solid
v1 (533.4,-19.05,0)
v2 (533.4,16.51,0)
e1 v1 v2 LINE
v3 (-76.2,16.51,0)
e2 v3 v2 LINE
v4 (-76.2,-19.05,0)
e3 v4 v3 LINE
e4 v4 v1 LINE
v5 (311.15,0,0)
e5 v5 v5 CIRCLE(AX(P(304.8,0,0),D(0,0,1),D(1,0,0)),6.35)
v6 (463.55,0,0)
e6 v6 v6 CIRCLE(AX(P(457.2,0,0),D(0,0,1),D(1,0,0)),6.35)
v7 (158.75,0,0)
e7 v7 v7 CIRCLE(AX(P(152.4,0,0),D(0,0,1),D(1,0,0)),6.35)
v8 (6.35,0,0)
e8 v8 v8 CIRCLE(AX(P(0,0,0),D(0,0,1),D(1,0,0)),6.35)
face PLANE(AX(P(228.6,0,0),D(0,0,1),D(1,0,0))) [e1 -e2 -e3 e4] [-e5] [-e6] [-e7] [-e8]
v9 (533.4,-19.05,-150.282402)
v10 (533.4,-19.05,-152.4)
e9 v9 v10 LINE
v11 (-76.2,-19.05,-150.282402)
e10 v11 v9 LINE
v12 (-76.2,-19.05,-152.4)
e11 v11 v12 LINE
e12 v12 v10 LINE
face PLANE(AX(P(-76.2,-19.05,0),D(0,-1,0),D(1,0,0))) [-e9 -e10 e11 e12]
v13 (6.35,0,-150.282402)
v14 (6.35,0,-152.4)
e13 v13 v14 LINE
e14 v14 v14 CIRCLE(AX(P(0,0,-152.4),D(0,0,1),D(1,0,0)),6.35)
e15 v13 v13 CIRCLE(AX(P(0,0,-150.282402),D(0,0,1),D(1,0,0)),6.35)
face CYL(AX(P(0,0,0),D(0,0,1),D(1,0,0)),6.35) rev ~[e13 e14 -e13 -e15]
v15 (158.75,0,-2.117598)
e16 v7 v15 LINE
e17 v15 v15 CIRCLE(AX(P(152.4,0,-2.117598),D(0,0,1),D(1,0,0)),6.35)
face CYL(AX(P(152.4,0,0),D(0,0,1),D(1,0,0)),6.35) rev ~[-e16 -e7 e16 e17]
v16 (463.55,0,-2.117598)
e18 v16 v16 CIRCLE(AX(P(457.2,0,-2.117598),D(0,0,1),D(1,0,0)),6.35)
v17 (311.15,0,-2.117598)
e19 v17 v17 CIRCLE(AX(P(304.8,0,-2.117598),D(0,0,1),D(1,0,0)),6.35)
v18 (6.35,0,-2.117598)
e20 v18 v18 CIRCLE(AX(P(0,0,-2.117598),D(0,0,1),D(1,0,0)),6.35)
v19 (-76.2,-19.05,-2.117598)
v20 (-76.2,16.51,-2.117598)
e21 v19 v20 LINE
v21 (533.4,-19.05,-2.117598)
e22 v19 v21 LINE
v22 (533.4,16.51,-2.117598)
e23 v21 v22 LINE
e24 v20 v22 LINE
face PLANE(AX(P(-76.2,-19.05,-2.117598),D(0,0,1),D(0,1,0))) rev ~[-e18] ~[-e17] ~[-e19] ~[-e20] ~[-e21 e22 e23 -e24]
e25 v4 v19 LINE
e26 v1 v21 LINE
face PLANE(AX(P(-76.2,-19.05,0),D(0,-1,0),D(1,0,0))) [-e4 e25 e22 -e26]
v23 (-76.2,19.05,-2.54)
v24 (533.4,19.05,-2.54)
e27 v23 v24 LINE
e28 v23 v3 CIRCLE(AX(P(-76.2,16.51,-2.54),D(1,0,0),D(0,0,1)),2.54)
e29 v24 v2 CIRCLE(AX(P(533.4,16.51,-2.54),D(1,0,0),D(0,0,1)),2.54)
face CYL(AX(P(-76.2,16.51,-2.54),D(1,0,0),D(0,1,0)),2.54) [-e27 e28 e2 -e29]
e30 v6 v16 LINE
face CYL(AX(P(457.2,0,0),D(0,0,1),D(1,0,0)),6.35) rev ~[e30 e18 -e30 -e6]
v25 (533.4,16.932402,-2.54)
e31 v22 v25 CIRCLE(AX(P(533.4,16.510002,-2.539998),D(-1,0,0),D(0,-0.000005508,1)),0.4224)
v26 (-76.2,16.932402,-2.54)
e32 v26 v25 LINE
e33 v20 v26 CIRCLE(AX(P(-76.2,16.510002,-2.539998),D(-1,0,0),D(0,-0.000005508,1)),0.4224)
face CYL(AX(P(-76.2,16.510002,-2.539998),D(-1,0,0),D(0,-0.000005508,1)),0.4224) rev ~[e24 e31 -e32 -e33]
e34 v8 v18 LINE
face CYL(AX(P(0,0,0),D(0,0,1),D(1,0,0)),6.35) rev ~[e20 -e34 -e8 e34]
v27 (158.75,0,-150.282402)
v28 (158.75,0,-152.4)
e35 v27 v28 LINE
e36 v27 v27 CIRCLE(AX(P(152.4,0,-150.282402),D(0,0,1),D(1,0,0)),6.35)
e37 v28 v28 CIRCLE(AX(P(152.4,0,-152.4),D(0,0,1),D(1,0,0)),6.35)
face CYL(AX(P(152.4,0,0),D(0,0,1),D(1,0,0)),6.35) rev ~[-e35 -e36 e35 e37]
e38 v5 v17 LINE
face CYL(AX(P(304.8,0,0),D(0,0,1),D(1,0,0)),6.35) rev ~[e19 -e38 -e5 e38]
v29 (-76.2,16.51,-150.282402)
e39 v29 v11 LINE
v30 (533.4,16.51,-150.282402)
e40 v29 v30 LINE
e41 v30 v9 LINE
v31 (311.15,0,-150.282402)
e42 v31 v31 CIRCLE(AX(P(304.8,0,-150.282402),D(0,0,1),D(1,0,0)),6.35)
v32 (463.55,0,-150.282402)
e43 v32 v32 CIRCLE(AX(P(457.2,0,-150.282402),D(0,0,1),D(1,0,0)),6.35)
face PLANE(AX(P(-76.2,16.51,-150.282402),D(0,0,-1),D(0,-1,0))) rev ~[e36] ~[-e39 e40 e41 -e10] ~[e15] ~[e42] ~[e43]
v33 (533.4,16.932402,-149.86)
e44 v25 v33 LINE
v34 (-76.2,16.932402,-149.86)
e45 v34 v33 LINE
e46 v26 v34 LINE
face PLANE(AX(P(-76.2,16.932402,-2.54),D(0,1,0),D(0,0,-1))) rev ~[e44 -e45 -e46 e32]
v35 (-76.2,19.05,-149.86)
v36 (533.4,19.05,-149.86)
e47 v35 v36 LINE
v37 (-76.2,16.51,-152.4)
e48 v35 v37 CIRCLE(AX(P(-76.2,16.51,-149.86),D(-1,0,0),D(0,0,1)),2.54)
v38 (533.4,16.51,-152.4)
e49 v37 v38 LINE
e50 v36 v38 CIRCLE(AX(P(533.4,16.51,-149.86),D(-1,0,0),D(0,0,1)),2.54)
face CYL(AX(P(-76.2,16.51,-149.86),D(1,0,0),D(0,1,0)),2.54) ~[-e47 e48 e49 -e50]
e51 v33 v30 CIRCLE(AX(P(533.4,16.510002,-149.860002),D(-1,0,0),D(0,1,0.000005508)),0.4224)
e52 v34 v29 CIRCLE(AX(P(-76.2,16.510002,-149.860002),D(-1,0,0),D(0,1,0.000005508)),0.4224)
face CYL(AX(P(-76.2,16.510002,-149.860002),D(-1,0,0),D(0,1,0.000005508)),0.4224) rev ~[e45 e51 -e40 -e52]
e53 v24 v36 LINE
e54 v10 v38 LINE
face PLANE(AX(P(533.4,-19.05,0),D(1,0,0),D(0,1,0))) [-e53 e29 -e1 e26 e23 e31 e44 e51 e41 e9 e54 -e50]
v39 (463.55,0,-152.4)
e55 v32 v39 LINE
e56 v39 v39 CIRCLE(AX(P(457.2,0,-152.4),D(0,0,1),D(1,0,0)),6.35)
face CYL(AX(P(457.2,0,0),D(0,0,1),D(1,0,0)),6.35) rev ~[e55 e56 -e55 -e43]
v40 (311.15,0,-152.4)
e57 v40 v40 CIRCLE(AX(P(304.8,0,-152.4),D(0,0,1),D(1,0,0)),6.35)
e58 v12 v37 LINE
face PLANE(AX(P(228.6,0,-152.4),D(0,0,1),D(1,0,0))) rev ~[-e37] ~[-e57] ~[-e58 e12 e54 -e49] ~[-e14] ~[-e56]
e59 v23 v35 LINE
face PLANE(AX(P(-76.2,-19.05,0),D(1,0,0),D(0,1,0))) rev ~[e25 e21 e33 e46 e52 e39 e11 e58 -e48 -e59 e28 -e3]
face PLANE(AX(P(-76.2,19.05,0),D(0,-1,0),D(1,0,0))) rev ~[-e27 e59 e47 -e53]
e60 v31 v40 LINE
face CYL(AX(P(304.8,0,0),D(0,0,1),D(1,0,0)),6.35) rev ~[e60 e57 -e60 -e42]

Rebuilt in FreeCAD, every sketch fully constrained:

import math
import FreeCAD as App
import Part
import Sketcher
Q = App.Units.Quantity


def edges_at(feature, points):
    """Names of the edges that pass closest to the given points."""
    edges = feature.Shape.Edges
    near = lambda p: min(range(len(edges)), key=lambda i: edges[i].distToShape(Part.Vertex(*p))[0])
    return sorted({f"Edge{near(p) + 1}" for p in points})


def add_polygon(sketch, points):
    """Adds a closed chain of lines whose ends are joined by coincident constraints."""
    first, n = sketch.GeometryCount, len(points)
    for a, b in zip(points, points[1:] + points[:1]):
        sketch.addGeometry(Part.LineSegment(App.Vector(*a, 0), App.Vector(*b, 0)), False)
    for i in range(n):
        sketch.addConstraint(Sketcher.Constraint("Coincident", first + i, 2, first + (i + 1) % n, 1))

doc = App.newDocument("Part")
body = doc.addObject("PartDesign::Body", "Body")

# Sketch on XY plane
sketch1 = doc.addObject("Sketcher::SketchObject", "Sketch")
body.addObject(sketch1)
sketch1.AttachmentSupport = (doc.XY_Plane, [""])
sketch1.MapMode = "FlatFace"
add_polygon(sketch1, [(-76.2, 19.05), (-76.2, -19.05), (533.4, -19.05), (533.4, 19.05)])  # lines 0-3
sketch1.addGeometry(Part.Circle(App.Vector(0, 0, 0), App.Vector(0, 0, 1), 6.35), False)  # 4
sketch1.addGeometry(Part.Circle(App.Vector(152.4, 0, 0), App.Vector(0, 0, 1), 6.35), False)  # 5
sketch1.addGeometry(Part.Circle(App.Vector(304.8, 0, 0), App.Vector(0, 0, 1), 6.35), False)  # 6
sketch1.addGeometry(Part.Circle(App.Vector(457.2, 0, 0), App.Vector(0, 0, 1), 6.35), False)  # 7
sketch1.addConstraint(Sketcher.Constraint("Vertical", 0))
sketch1.addConstraint(Sketcher.Constraint("Horizontal", 1))
sketch1.addConstraint(Sketcher.Constraint("Vertical", 2))
sketch1.addConstraint(Sketcher.Constraint("Horizontal", 3))
sketch1.addConstraint(Sketcher.Constraint("Coincident", 4, 3, -1, 1))
sketch1.addConstraint(Sketcher.Constraint("Equal", 4, 5))
sketch1.addConstraint(Sketcher.Constraint("Equal", 5, 6))
sketch1.addConstraint(Sketcher.Constraint("Equal", 6, 7))
sketch1.addConstraint(Sketcher.Constraint("PointOnObject", 5, 3, -1))
sketch1.addConstraint(Sketcher.Constraint("PointOnObject", 6, 3, -1))
sketch1.addConstraint(Sketcher.Constraint("PointOnObject", 7, 3, -1))
sketch1.addConstraint(Sketcher.Constraint("Diameter", 4, Q("0.5 in")))
sketch1.addConstraint(Sketcher.Constraint("DistanceX", 1, 1, 1, 2, Q("24 in")))
sketch1.addConstraint(Sketcher.Constraint("DistanceY", 0, 2, 0, 1, Q("1.5 in")))
sketch1.addConstraint(Sketcher.Constraint("DistanceX", -1, 1, 5, 3, Q("6 in")))
sketch1.addConstraint(Sketcher.Constraint("DistanceX", -1, 1, 6, 3, Q("12 in")))
sketch1.addConstraint(Sketcher.Constraint("DistanceX", -1, 1, 7, 3, Q("18 in")))
sketch1.addConstraint(Sketcher.Constraint("DistanceX", 0, 2, -1, 1, Q("3 in")))
sketch1.addConstraint(Sketcher.Constraint("DistanceY", 0, 2, -1, 1, Q("0.75 in")))
pad1 = doc.addObject("PartDesign::Pad", "Pad")
body.addObject(pad1)
pad1.Profile = sketch1
pad1.Length = Q("6 in")
pad1.Reversed = True
doc.recompute()

fillet = doc.addObject("PartDesign::Fillet", "Fillet")
body.addObject(fillet)
fillet.Base = (pad1, edges_at(pad1, [(228.6, 19.05, 0), (228.6, 19.05, -152.4)]))
fillet.Radius = Q("0.1 in")

# Sketch on YZ plane
sketch2 = doc.addObject("Sketcher::SketchObject", "Sketch001")
body.addObject(sketch2)
sketch2.AttachmentSupport = (doc.YZ_Plane, [""])
sketch2.MapMode = "FlatFace"
sketch2.AttachmentOffset = App.Placement(App.Vector(0, 0, -3 * 25.4), App.Rotation())
sketch2.addGeometry(Part.LineSegment(App.Vector(16.51, -150.282402, 0), App.Vector(-19.05, -150.282402, 0)), False)
sketch2.addGeometry(Part.LineSegment(App.Vector(-19.05, -150.282402, 0), App.Vector(-19.05, -2.117598, 0)), False)
sketch2.addGeometry(Part.LineSegment(App.Vector(-19.05, -2.117598, 0), App.Vector(16.51, -2.117598, 0)), False)
sketch2.addGeometry(Part.ArcOfCircle(Part.Circle(App.Vector(16.510002, -2.539998, 0), App.Vector(0, 0, 1), 0.4224), math.radians(-0.000316), math.radians(90.000316)), False)
sketch2.addGeometry(Part.LineSegment(App.Vector(16.932402, -2.54, 0), App.Vector(16.932402, -149.86, 0)), False)
sketch2.addGeometry(Part.ArcOfCircle(Part.Circle(App.Vector(16.510002, -149.860002, 0), App.Vector(0, 0, 1), 0.4224), math.radians(-90.000316), math.radians(0.000316)), False)
sketch2.addConstraint(Sketcher.Constraint("Coincident", 0, 2, 1, 1))
sketch2.addConstraint(Sketcher.Constraint("Coincident", 1, 2, 2, 1))
sketch2.addConstraint(Sketcher.Constraint("Coincident", 2, 2, 3, 2))
sketch2.addConstraint(Sketcher.Constraint("Coincident", 3, 1, 4, 1))
sketch2.addConstraint(Sketcher.Constraint("Coincident", 4, 2, 5, 2))
sketch2.addConstraint(Sketcher.Constraint("Coincident", 5, 1, 0, 1))
sketch2.addConstraint(Sketcher.Constraint("Horizontal", 0))
sketch2.addConstraint(Sketcher.Constraint("Vertical", 1))
sketch2.addConstraint(Sketcher.Constraint("Horizontal", 2))
sketch2.addConstraint(Sketcher.Constraint("Vertical", 4))
sketch2.addConstraint(Sketcher.Constraint("Equal", 3, 5))
sketch2.addConstraint(Sketcher.Constraint("Vertical", 2, 2, 5, 1))
sketch2.addConstraint(Sketcher.Constraint("DistanceX", 0, 2, 0, 1, Q("1.4 in")))
sketch2.addConstraint(Sketcher.Constraint("DistanceY", 4, 2, 4, 1, Q("5.8 in")))
sketch2.addConstraint(Sketcher.Constraint("DistanceY", 3, 3, -1, 1, Q("0.0999999 in")))
sketch2.addConstraint(Sketcher.Constraint("DistanceY", 5, 3, -1, 1, Q("5.9000001 in")))
sketch2.addConstraint(Sketcher.Constraint("DistanceY", 3, 1, -1, 1, Q("0.1 in")))
sketch2.addConstraint(Sketcher.Constraint("DistanceX", 0, 2, 5, 3, Q("1.4000001 in")))
sketch2.addConstraint(Sketcher.Constraint("DistanceX", -1, 1, 3, 3, Q("0.6500001 in")))
sketch2.addConstraint(Sketcher.Constraint("Radius", 3, Q("0.4224 mm")))
pocket1 = doc.addObject("PartDesign::Pocket", "Pocket")
body.addObject(pocket1)
pocket1.Profile = sketch2
pocket1.Type = "ThroughAll"
pocket1.Reversed = True

doc.recompute()
